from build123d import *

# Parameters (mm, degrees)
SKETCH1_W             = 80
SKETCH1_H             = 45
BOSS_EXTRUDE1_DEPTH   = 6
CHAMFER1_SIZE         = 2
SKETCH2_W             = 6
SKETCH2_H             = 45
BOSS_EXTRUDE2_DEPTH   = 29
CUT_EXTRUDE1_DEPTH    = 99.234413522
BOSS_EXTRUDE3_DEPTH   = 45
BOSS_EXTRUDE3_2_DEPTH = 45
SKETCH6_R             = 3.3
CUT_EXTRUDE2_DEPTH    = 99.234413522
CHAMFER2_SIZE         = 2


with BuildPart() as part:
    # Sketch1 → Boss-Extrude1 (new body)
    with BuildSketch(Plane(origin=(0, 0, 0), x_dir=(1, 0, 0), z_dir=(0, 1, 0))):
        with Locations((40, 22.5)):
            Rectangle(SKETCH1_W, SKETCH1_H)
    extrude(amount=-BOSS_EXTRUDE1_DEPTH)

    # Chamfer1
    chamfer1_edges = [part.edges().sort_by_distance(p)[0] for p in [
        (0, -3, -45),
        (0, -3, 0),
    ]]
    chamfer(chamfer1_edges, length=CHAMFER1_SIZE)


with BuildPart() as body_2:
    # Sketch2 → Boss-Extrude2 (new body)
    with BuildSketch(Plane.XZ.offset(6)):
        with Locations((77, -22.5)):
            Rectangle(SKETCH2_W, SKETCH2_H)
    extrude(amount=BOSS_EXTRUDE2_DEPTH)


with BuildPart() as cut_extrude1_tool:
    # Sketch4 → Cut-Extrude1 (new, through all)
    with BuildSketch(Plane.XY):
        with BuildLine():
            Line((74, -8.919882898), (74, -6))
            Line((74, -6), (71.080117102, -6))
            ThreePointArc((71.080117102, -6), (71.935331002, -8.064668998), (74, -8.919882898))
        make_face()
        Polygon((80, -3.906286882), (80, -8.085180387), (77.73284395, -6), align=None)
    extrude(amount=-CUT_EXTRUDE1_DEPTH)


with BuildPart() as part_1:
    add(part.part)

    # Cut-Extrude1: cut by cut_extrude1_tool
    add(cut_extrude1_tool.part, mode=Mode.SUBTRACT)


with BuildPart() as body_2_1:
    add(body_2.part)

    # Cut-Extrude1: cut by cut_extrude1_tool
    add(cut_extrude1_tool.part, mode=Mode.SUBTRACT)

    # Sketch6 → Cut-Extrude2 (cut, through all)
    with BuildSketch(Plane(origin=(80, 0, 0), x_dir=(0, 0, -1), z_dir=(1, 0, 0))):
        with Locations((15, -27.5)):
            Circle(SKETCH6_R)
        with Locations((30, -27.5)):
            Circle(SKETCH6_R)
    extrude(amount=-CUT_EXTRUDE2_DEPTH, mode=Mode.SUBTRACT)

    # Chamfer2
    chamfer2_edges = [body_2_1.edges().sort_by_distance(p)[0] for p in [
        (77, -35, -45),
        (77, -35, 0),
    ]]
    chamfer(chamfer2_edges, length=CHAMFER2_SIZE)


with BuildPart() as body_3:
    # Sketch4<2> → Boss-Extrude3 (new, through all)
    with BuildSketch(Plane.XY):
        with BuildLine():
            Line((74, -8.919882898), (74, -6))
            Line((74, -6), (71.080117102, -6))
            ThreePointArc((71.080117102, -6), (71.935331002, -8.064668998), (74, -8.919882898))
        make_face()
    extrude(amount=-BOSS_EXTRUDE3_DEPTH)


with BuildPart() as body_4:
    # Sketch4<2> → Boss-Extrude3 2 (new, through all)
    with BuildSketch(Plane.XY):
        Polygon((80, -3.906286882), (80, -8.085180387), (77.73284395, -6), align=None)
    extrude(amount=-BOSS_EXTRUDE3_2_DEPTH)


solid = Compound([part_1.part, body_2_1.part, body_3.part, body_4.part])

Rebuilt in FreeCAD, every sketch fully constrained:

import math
import FreeCAD as App
import Part
import Sketcher
Q = App.Units.Quantity


def edges_at(feature, points):
    """Names of the edges that pass closest to the given points."""
    edges = feature.Shape.Edges
    near = lambda p: min(range(len(edges)), key=lambda i: edges[i].distToShape(Part.Vertex(*p))[0])
    return sorted({f"Edge{near(p) + 1}" for p in points})

doc = App.newDocument("Part")
body = doc.addObject("PartDesign::Body", "Body")

sketch1 = doc.addObject("Sketcher::SketchObject", "Sketch")
body.addObject(sketch1)
sketch1.AttachmentSupport = (doc.XZ_Plane, [""])
sketch1.MapMode = "FlatFace"
sketch1.addGeometry([
    Part.LineSegment(App.Vector(0, -45, 0), App.Vector(0, 0, 0)),
    Part.LineSegment(App.Vector(0, 0, 0), App.Vector(80, 0, 0)),
    Part.LineSegment(App.Vector(80, 0, 0), App.Vector(80, -45, 0)),
    Part.LineSegment(App.Vector(80, -45, 0), App.Vector(0, -45, 0)),
], False)
sketch1.addConstraint([
    Sketcher.Constraint("Coincident", 0, 2, 1, 1),
    Sketcher.Constraint("Coincident", 1, 2, 2, 1),
    Sketcher.Constraint("Coincident", 2, 2, 3, 1),
    Sketcher.Constraint("Coincident", 3, 2, 0, 1),
    Sketcher.Constraint("Vertical", 0),
    Sketcher.Constraint("Horizontal", 1),
    Sketcher.Constraint("Vertical", 2),
    Sketcher.Constraint("Horizontal", 3),
    Sketcher.Constraint("Coincident", 0, 2, -1, 1),
    Sketcher.Constraint("DistanceX", 1, 1, 1, 2, Q("80 mm")),
    Sketcher.Constraint("DistanceY", 0, 1, 0, 2, Q("45 mm")),
])
pad1 = doc.addObject("PartDesign::Pad", "Pad")
body.addObject(pad1)
pad1.Profile = sketch1
pad1.Length = 6
doc.recompute()

chamfer = doc.addObject("PartDesign::Chamfer", "Chamfer")
body.addObject(chamfer)
chamfer.Base = (pad1, edges_at(pad1, [(0, -3, -45), (0, -3, 0)]))
chamfer.Size = 2
body2 = doc.addObject("PartDesign::Body", "Body001")

sketch2 = doc.addObject("Sketcher::SketchObject", "Sketch001")
body2.addObject(sketch2)
sketch2.AttachmentSupport = (doc.getObject("XZ_Plane001"), [""])
sketch2.MapMode = "FlatFace"
sketch2.AttachmentOffset = App.Placement(App.Vector(0, 0, 6), App.Rotation())
sketch2.addGeometry([
    Part.LineSegment(App.Vector(74, 0, 0), App.Vector(74, -45, 0)),
    Part.LineSegment(App.Vector(74, -45, 0), App.Vector(80, -45, 0)),
    Part.LineSegment(App.Vector(80, -45, 0), App.Vector(80, 0, 0)),
    Part.LineSegment(App.Vector(80, 0, 0), App.Vector(74, 0, 0)),
], False)
sketch2.addConstraint([
    Sketcher.Constraint("Coincident", 0, 2, 1, 1),
    Sketcher.Constraint("Coincident", 1, 2, 2, 1),
    Sketcher.Constraint("Coincident", 2, 2, 3, 1),
    Sketcher.Constraint("Coincident", 3, 2, 0, 1),
    Sketcher.Constraint("Vertical", 0),
    Sketcher.Constraint("Horizontal", 1),
    Sketcher.Constraint("Vertical", 2),
    Sketcher.Constraint("Horizontal", 3),
    Sketcher.Constraint("PointOnObject", 2, 2, -1),
    Sketcher.Constraint("DistanceX", 1, 1, 1, 2, Q("6 mm")),
    Sketcher.Constraint("DistanceY", 0, 2, 0, 1, Q("45 mm")),
    Sketcher.Constraint("DistanceX", -1, 1, 0, 2, Q("74 mm")),
])
pad2 = doc.addObject("PartDesign::Pad", "Pad001")
body2.addObject(pad2)
pad2.Profile = sketch2
pad2.Length = 29
body3 = doc.addObject("PartDesign::Body", "Body002")
body3.AllowCompound = True

sketch3 = doc.addObject("Sketcher::SketchObject", "Sketch002")
body3.addObject(sketch3)
sketch3.AttachmentSupport = (doc.getObject("XY_Plane002"), [""])
sketch3.MapMode = "FlatFace"
sketch3.addGeometry([
    Part.LineSegment(App.Vector(74, -8.919883, 0), App.Vector(74, -6, 0)),
    Part.LineSegment(App.Vector(74, -6, 0), App.Vector(71.080117, -6, 0)),
    Part.ArcOfCircle(Part.Circle(App.Vector(74, -6, 0), App.Vector(0, 0, 1), 2.919883), math.radians(180), math.radians(270)),
    Part.LineSegment(App.Vector(80, -8.08518, 0), App.Vector(80, -3.906287, 0)),
    Part.LineSegment(App.Vector(80, -3.906287, 0), App.Vector(77.732844, -6, 0)),
    Part.LineSegment(App.Vector(77.732844, -6, 0), App.Vector(80, -8.08518, 0)),
], False)
sketch3.addConstraint([
    Sketcher.Constraint("Coincident", 0, 2, 1, 1),
    Sketcher.Constraint("Coincident", 1, 2, 2, 1),
    Sketcher.Constraint("Coincident", 2, 2, 0, 1),
    Sketcher.Constraint("Coincident", 3, 2, 4, 1),
    Sketcher.Constraint("Coincident", 4, 2, 5, 1),
    Sketcher.Constraint("Coincident", 5, 2, 3, 1),
    Sketcher.Constraint("Vertical", 0),
    Sketcher.Constraint("Horizontal", 1),
    Sketcher.Constraint("Vertical", 3),
    Sketcher.Constraint("Coincident", 0, 2, 2, 3),
    Sketcher.Constraint("Horizontal", 1, 2, 4, 2),
    Sketcher.Constraint("DistanceX", -1, 1, 2, 3, Q("74 mm")),
    Sketcher.Constraint("DistanceY", 2, 3, -1, 1, Q("6 mm")),
    Sketcher.Constraint("DistanceX", -1, 1, 3, 2, Q("80 mm")),
    Sketcher.Constraint("Radius", 2, Q("2.919883 mm")),
    Sketcher.Constraint("Distance", 4, Q("3.086038 mm")),
    Sketcher.Constraint("DistanceY", 3, 1, 3, 2, Q("4.178894 mm")),
    Sketcher.Constraint("DistanceY", 5, 2, -1, 1, Q("8.08518 mm")),
])
pad3 = doc.addObject("PartDesign::Pad", "Pad002")
body3.addObject(pad3)
pad3.Profile = sketch3
pad3.Length = 99.234414
pad3.Reversed = True
doc.recompute()

body4 = doc.addObject("PartDesign::Body", "Body003")
body4.BaseFeature = body3
boolean = doc.addObject("PartDesign::Boolean", "Boolean")
body.addObject(boolean)
boolean.Type = "Cut"
boolean.addObjects([body4])
doc.recompute()

boolean2 = doc.addObject("PartDesign::Boolean", "Boolean001")
body2.addObject(boolean2)
boolean2.Type = "Cut"
boolean2.addObjects([body3])

sketch4 = doc.addObject("Sketcher::SketchObject", "Sketch003")
body2.addObject(sketch4)
sketch4.AttachmentSupport = (doc.getObject("YZ_Plane001"), [""])
sketch4.MapMode = "FlatFace"
sketch4.AttachmentOffset = App.Placement(App.Vector(0, 0, 80), App.Rotation())
sketch4.addGeometry([
    Part.Circle(App.Vector(-27.5, -15, 0), App.Vector(0, 0, 1), 3.3),
    Part.Circle(App.Vector(-27.5, -30, 0), App.Vector(0, 0, 1), 3.3),
], False)
sketch4.addConstraint([
    Sketcher.Constraint("Equal", 0, 1),
    Sketcher.Constraint("Vertical", 0, 3, 1, 3),
    Sketcher.Constraint("Diameter", 0, Q("6.6 mm")),
    Sketcher.Constraint("DistanceY", 0, 3, -1, 1, Q("15 mm")),
    Sketcher.Constraint("DistanceY", 1, 3, -1, 1, Q("30 mm")),
    Sketcher.Constraint("DistanceX", 0, 3, -1, 1, Q("27.5 mm")),
])
pocket1 = doc.addObject("PartDesign::Pocket", "Pocket")
body2.addObject(pocket1)
pocket1.Profile = sketch4
pocket1.Type = "ThroughAll"
doc.recompute()

chamfer2 = doc.addObject("PartDesign::Chamfer", "Chamfer001")
body2.addObject(chamfer2)
chamfer2.Base = (pocket1, edges_at(pocket1, [(77, -35, -45), (77, -35, 0)]))
chamfer2.Size = 2
body5 = doc.addObject("PartDesign::Body", "Body004")

sketch5 = doc.addObject("Sketcher::SketchObject", "Sketch004")
body5.addObject(sketch5)
sketch5.AttachmentSupport = (doc.getObject("XY_Plane004"), [""])
sketch5.MapMode = "FlatFace"
sketch5.addGeometry([
    Part.LineSegment(App.Vector(74, -8.919883, 0), App.Vector(74, -6, 0)),
    Part.LineSegment(App.Vector(74, -6, 0), App.Vector(71.080117, -6, 0)),
    Part.ArcOfCircle(Part.Circle(App.Vector(74, -6, 0), App.Vector(0, 0, 1), 2.919883), math.radians(180), math.radians(270)),
], False)
sketch5.addConstraint([
    Sketcher.Constraint("Coincident", 0, 2, 1, 1),
    Sketcher.Constraint("Coincident", 1, 2, 2, 1),
    Sketcher.Constraint("Coincident", 2, 2, 0, 1),
    Sketcher.Constraint("Vertical", 0),
    Sketcher.Constraint("Horizontal", 1),
    Sketcher.Constraint("Coincident", 0, 2, 2, 3),
    Sketcher.Constraint("DistanceX", -1, 1, 2, 3, Q("74 mm")),
    Sketcher.Constraint("DistanceY", 2, 3, -1, 1, Q("6 mm")),
    Sketcher.Constraint("Radius", 2, Q("2.919883 mm")),
])
pad4 = doc.addObject("PartDesign::Pad", "Pad003")
body5.addObject(pad4)
pad4.Profile = sketch5
pad4.Length = 45
pad4.Reversed = True
body6 = doc.addObject("PartDesign::Body", "Body005")

sketch6 = doc.addObject("Sketcher::SketchObject", "Sketch005")
body6.addObject(sketch6)
sketch6.AttachmentSupport = (doc.getObject("XY_Plane005"), [""])
sketch6.MapMode = "FlatFace"
sketch6.addGeometry([
    Part.LineSegment(App.Vector(80, -8.08518, 0), App.Vector(80, -3.906287, 0)),
    Part.LineSegment(App.Vector(80, -3.906287, 0), App.Vector(77.732844, -6, 0)),
    Part.LineSegment(App.Vector(77.732844, -6, 0), App.Vector(80, -8.08518, 0)),
], False)
sketch6.addConstraint([
    Sketcher.Constraint("Coincident", 0, 2, 1, 1),
    Sketcher.Constraint("Coincident", 1, 2, 2, 1),
    Sketcher.Constraint("Coincident", 2, 2, 0, 1),
    Sketcher.Constraint("Vertical", 0),
    Sketcher.Constraint("DistanceX", -1, 1, 0, 2, Q("80 mm")),
    Sketcher.Constraint("DistanceY", 1, 2, -1, 1, Q("6 mm")),
    Sketcher.Constraint("Distance", 1, Q("3.086038 mm")),
    Sketcher.Constraint("DistanceY", 0, 1, 0, 2, Q("4.178894 mm")),
    Sketcher.Constraint("DistanceY", 2, 2, -1, 1, Q("8.08518 mm")),
])
pad5 = doc.addObject("PartDesign::Pad", "Pad004")
body6.addObject(pad5)
pad5.Profile = sketch6
pad5.Length = 45
pad5.Reversed = True

doc.recompute()
